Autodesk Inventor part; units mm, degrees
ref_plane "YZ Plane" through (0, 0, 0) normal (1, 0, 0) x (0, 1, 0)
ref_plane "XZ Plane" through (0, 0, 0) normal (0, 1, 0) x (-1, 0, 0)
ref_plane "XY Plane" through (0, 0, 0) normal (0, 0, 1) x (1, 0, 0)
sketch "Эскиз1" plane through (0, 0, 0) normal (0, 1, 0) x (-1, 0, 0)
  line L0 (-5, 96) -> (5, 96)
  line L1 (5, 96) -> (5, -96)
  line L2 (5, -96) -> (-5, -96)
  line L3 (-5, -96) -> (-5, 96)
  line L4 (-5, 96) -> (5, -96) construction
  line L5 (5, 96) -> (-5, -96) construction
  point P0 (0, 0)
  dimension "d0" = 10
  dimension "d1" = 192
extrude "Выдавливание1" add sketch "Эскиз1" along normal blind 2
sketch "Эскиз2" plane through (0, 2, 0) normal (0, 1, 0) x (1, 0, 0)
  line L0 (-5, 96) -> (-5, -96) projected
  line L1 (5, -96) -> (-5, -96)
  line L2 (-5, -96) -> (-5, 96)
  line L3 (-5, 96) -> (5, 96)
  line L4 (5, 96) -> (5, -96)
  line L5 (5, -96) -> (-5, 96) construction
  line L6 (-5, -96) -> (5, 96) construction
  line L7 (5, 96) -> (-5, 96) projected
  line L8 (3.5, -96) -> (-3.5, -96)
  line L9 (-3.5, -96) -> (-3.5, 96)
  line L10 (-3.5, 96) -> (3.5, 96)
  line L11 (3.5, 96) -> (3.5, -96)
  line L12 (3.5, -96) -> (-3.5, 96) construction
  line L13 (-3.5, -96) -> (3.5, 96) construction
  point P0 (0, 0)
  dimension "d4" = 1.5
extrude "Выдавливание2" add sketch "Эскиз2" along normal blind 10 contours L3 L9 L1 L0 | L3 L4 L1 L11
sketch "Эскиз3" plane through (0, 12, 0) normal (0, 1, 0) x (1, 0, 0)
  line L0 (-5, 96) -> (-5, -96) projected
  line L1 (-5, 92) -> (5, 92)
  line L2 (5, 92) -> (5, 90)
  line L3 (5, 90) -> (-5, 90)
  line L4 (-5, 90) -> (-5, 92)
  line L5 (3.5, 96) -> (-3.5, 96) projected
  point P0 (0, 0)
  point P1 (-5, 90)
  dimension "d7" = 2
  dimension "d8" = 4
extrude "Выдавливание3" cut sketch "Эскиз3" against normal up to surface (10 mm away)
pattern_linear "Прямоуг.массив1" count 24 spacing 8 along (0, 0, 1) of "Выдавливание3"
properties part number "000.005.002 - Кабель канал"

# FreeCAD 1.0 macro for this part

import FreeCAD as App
import Part
import Sketcher

V = App.Vector
Q = App.Units.Quantity


def add_polygon(sketch, points):
    """Adds a closed chain of lines whose ends are joined by coincident constraints."""
    first, n = sketch.GeometryCount, len(points)
    for a, b in zip(points, points[1:] + points[:1]):
        sketch.addGeometry(Part.LineSegment(App.Vector(*a, 0), App.Vector(*b, 0)), False)
    for i in range(n):
        sketch.addConstraint(Sketcher.Constraint("Coincident", first + i, 2, first + (i + 1) % n, 1))

doc = App.newDocument("Part")
params = doc.addObject("Spreadsheet::Sheet", "Params")
for row, (alias, value) in enumerate([
    ("sketch1_width", "10 mm"),
    ("sketch1_height", "192 mm"),
    ("pad1_length", "2 mm"),
    ("sketch2_width", "1.5 mm"),
    ("sketch2_height", "192 mm"),
    ("pad2_length", "10 mm"),
    ("sketch3_height", "2 mm"),
    ("sketch3_width", "10 mm"),
    ("pocket1_length", "10 mm"),
    ("linearpattern_pitch", "8 mm"),
], start=1):
    params.set(f"A{row}", alias)
    params.set(f"B{row}", "=" + value)
    params.setAlias(f"B{row}", alias)

body = doc.addObject("PartDesign::Body", "Body")

# Sketch on XZ plane
sketch1 = body.newObject("Sketcher::SketchObject", "Sketch")
sketch1.AttachmentSupport = (doc.getObject("XZ_Plane"), [""])
sketch1.MapMode = "FlatFace"
add_polygon(sketch1, [(-5, 96), (5, 96), (5, -96), (-5, -96)])  # lines 0-3
sketch1.addConstraint(Sketcher.Constraint("Horizontal", 0))
sketch1.addConstraint(Sketcher.Constraint("Vertical", 1))
sketch1.addConstraint(Sketcher.Constraint("Horizontal", 2))
sketch1.addConstraint(Sketcher.Constraint("Vertical", 3))
sketch1.addConstraint(Sketcher.Constraint("Symmetric", 0, 2, 2, 2, -1, 1))
sketch1.addConstraint(Sketcher.Constraint("DistanceX", 0, 1, 0, 2, Q("10 mm")))
sketch1.addConstraint(Sketcher.Constraint("DistanceY", 1, 2, 1, 1, Q("192 mm")))
sketch1.setExpression("Constraints[9]", "Params.sketch1_width")
sketch1.setExpression("Constraints[10]", "Params.sketch1_height")
pad1 = body.newObject("PartDesign::Pad", "Pad")
pad1.Profile = sketch1
pad1.setExpression("Length", "Params.pad1_length")
pad1.Reversed = True

# Sketch on XZ plane
sketch2 = body.newObject("Sketcher::SketchObject", "Sketch001")
sketch2.AttachmentSupport = (doc.getObject("XZ_Plane"), [""])
sketch2.MapMode = "FlatFace"
sketch2.AttachmentOffset = App.Placement(V(0, 0, -2), App.Rotation())
add_polygon(sketch2, [(-3.5, -96), (-5, -96), (-5, 96), (-3.5, 96)])  # lines 0-3
add_polygon(sketch2, [(5, -96), (3.5, -96), (3.5, 96), (5, 96)])  # lines 4-7
sketch2.addConstraint(Sketcher.Constraint("Horizontal", 0))
sketch2.addConstraint(Sketcher.Constraint("Vertical", 1))
sketch2.addConstraint(Sketcher.Constraint("Horizontal", 2))
sketch2.addConstraint(Sketcher.Constraint("Vertical", 3))
sketch2.addConstraint(Sketcher.Constraint("Horizontal", 4))
sketch2.addConstraint(Sketcher.Constraint("Vertical", 5))
sketch2.addConstraint(Sketcher.Constraint("Horizontal", 6))
sketch2.addConstraint(Sketcher.Constraint("Vertical", 7))
sketch2.addConstraint(Sketcher.Constraint("Symmetric", 2, 2, 4, 2, -1, 1))
sketch2.addConstraint(Sketcher.Constraint("Symmetric", 0, 2, 6, 2, -1, 1))
sketch2.addConstraint(Sketcher.Constraint("Horizontal", 3, 2, 4, 2))
sketch2.addConstraint(Sketcher.Constraint("DistanceX", 0, 2, 0, 1, Q("1.5 mm")))
sketch2.addConstraint(Sketcher.Constraint("DistanceY", 1, 1, 1, 2, Q("192 mm")))
sketch2.addConstraint(Sketcher.Constraint("DistanceX", 0, 2, -1, 1, Q("5 mm")))
sketch2.setExpression("Constraints[19]", "Params.sketch2_width")
sketch2.setExpression("Constraints[20]", "Params.sketch2_height")
pad2 = body.newObject("PartDesign::Pad", "Pad001")
pad2.Profile = sketch2
pad2.setExpression("Length", "Params.pad2_length")
pad2.Reversed = True

# Sketch on XZ plane
sketch3 = body.newObject("Sketcher::SketchObject", "Sketch002")
sketch3.AttachmentSupport = (doc.getObject("XZ_Plane"), [""])
sketch3.MapMode = "FlatFace"
sketch3.AttachmentOffset = App.Placement(V(0, 0, -12), App.Rotation())
add_polygon(sketch3, [(5, -92), (-5, -92), (-5, -90), (5, -90)])  # lines 0-3
sketch3.addConstraint(Sketcher.Constraint("Horizontal", 0))
sketch3.addConstraint(Sketcher.Constraint("Vertical", 1))
sketch3.addConstraint(Sketcher.Constraint("Horizontal", 2))
sketch3.addConstraint(Sketcher.Constraint("Vertical", 3))
sketch3.addConstraint(Sketcher.Constraint("DistanceY", 1, 1, 1, 2, Q("2 mm")))
sketch3.addConstraint(Sketcher.Constraint("DistanceX", 0, 2, 0, 1, Q("10 mm")))
sketch3.addConstraint(Sketcher.Constraint("DistanceX", 0, 2, -1, 1, Q("5 mm")))
sketch3.addConstraint(Sketcher.Constraint("DistanceY", 0, 2, -1, 1, Q("92 mm")))
sketch3.setExpression("Constraints[8]", "Params.sketch3_height")
sketch3.setExpression("Constraints[9]", "Params.sketch3_width")
pocket1 = body.newObject("PartDesign::Pocket", "Pocket")
pocket1.Profile = sketch3
pocket1.setExpression("Length", "Params.pocket1_length")
pocket1.Reversed = True
doc.recompute()

linearpattern = body.newObject("PartDesign::LinearPattern", "LinearPattern")
linearpattern.Originals = [pocket1]
linearpattern.Direction = (doc.getObject("Z_Axis"), [""])
linearpattern.Mode = "offset"
linearpattern.setExpression("Offset", "Params.linearpattern_pitch")
linearpattern.Occurrences = 24
body.Tip = linearpattern

doc.recompute()
